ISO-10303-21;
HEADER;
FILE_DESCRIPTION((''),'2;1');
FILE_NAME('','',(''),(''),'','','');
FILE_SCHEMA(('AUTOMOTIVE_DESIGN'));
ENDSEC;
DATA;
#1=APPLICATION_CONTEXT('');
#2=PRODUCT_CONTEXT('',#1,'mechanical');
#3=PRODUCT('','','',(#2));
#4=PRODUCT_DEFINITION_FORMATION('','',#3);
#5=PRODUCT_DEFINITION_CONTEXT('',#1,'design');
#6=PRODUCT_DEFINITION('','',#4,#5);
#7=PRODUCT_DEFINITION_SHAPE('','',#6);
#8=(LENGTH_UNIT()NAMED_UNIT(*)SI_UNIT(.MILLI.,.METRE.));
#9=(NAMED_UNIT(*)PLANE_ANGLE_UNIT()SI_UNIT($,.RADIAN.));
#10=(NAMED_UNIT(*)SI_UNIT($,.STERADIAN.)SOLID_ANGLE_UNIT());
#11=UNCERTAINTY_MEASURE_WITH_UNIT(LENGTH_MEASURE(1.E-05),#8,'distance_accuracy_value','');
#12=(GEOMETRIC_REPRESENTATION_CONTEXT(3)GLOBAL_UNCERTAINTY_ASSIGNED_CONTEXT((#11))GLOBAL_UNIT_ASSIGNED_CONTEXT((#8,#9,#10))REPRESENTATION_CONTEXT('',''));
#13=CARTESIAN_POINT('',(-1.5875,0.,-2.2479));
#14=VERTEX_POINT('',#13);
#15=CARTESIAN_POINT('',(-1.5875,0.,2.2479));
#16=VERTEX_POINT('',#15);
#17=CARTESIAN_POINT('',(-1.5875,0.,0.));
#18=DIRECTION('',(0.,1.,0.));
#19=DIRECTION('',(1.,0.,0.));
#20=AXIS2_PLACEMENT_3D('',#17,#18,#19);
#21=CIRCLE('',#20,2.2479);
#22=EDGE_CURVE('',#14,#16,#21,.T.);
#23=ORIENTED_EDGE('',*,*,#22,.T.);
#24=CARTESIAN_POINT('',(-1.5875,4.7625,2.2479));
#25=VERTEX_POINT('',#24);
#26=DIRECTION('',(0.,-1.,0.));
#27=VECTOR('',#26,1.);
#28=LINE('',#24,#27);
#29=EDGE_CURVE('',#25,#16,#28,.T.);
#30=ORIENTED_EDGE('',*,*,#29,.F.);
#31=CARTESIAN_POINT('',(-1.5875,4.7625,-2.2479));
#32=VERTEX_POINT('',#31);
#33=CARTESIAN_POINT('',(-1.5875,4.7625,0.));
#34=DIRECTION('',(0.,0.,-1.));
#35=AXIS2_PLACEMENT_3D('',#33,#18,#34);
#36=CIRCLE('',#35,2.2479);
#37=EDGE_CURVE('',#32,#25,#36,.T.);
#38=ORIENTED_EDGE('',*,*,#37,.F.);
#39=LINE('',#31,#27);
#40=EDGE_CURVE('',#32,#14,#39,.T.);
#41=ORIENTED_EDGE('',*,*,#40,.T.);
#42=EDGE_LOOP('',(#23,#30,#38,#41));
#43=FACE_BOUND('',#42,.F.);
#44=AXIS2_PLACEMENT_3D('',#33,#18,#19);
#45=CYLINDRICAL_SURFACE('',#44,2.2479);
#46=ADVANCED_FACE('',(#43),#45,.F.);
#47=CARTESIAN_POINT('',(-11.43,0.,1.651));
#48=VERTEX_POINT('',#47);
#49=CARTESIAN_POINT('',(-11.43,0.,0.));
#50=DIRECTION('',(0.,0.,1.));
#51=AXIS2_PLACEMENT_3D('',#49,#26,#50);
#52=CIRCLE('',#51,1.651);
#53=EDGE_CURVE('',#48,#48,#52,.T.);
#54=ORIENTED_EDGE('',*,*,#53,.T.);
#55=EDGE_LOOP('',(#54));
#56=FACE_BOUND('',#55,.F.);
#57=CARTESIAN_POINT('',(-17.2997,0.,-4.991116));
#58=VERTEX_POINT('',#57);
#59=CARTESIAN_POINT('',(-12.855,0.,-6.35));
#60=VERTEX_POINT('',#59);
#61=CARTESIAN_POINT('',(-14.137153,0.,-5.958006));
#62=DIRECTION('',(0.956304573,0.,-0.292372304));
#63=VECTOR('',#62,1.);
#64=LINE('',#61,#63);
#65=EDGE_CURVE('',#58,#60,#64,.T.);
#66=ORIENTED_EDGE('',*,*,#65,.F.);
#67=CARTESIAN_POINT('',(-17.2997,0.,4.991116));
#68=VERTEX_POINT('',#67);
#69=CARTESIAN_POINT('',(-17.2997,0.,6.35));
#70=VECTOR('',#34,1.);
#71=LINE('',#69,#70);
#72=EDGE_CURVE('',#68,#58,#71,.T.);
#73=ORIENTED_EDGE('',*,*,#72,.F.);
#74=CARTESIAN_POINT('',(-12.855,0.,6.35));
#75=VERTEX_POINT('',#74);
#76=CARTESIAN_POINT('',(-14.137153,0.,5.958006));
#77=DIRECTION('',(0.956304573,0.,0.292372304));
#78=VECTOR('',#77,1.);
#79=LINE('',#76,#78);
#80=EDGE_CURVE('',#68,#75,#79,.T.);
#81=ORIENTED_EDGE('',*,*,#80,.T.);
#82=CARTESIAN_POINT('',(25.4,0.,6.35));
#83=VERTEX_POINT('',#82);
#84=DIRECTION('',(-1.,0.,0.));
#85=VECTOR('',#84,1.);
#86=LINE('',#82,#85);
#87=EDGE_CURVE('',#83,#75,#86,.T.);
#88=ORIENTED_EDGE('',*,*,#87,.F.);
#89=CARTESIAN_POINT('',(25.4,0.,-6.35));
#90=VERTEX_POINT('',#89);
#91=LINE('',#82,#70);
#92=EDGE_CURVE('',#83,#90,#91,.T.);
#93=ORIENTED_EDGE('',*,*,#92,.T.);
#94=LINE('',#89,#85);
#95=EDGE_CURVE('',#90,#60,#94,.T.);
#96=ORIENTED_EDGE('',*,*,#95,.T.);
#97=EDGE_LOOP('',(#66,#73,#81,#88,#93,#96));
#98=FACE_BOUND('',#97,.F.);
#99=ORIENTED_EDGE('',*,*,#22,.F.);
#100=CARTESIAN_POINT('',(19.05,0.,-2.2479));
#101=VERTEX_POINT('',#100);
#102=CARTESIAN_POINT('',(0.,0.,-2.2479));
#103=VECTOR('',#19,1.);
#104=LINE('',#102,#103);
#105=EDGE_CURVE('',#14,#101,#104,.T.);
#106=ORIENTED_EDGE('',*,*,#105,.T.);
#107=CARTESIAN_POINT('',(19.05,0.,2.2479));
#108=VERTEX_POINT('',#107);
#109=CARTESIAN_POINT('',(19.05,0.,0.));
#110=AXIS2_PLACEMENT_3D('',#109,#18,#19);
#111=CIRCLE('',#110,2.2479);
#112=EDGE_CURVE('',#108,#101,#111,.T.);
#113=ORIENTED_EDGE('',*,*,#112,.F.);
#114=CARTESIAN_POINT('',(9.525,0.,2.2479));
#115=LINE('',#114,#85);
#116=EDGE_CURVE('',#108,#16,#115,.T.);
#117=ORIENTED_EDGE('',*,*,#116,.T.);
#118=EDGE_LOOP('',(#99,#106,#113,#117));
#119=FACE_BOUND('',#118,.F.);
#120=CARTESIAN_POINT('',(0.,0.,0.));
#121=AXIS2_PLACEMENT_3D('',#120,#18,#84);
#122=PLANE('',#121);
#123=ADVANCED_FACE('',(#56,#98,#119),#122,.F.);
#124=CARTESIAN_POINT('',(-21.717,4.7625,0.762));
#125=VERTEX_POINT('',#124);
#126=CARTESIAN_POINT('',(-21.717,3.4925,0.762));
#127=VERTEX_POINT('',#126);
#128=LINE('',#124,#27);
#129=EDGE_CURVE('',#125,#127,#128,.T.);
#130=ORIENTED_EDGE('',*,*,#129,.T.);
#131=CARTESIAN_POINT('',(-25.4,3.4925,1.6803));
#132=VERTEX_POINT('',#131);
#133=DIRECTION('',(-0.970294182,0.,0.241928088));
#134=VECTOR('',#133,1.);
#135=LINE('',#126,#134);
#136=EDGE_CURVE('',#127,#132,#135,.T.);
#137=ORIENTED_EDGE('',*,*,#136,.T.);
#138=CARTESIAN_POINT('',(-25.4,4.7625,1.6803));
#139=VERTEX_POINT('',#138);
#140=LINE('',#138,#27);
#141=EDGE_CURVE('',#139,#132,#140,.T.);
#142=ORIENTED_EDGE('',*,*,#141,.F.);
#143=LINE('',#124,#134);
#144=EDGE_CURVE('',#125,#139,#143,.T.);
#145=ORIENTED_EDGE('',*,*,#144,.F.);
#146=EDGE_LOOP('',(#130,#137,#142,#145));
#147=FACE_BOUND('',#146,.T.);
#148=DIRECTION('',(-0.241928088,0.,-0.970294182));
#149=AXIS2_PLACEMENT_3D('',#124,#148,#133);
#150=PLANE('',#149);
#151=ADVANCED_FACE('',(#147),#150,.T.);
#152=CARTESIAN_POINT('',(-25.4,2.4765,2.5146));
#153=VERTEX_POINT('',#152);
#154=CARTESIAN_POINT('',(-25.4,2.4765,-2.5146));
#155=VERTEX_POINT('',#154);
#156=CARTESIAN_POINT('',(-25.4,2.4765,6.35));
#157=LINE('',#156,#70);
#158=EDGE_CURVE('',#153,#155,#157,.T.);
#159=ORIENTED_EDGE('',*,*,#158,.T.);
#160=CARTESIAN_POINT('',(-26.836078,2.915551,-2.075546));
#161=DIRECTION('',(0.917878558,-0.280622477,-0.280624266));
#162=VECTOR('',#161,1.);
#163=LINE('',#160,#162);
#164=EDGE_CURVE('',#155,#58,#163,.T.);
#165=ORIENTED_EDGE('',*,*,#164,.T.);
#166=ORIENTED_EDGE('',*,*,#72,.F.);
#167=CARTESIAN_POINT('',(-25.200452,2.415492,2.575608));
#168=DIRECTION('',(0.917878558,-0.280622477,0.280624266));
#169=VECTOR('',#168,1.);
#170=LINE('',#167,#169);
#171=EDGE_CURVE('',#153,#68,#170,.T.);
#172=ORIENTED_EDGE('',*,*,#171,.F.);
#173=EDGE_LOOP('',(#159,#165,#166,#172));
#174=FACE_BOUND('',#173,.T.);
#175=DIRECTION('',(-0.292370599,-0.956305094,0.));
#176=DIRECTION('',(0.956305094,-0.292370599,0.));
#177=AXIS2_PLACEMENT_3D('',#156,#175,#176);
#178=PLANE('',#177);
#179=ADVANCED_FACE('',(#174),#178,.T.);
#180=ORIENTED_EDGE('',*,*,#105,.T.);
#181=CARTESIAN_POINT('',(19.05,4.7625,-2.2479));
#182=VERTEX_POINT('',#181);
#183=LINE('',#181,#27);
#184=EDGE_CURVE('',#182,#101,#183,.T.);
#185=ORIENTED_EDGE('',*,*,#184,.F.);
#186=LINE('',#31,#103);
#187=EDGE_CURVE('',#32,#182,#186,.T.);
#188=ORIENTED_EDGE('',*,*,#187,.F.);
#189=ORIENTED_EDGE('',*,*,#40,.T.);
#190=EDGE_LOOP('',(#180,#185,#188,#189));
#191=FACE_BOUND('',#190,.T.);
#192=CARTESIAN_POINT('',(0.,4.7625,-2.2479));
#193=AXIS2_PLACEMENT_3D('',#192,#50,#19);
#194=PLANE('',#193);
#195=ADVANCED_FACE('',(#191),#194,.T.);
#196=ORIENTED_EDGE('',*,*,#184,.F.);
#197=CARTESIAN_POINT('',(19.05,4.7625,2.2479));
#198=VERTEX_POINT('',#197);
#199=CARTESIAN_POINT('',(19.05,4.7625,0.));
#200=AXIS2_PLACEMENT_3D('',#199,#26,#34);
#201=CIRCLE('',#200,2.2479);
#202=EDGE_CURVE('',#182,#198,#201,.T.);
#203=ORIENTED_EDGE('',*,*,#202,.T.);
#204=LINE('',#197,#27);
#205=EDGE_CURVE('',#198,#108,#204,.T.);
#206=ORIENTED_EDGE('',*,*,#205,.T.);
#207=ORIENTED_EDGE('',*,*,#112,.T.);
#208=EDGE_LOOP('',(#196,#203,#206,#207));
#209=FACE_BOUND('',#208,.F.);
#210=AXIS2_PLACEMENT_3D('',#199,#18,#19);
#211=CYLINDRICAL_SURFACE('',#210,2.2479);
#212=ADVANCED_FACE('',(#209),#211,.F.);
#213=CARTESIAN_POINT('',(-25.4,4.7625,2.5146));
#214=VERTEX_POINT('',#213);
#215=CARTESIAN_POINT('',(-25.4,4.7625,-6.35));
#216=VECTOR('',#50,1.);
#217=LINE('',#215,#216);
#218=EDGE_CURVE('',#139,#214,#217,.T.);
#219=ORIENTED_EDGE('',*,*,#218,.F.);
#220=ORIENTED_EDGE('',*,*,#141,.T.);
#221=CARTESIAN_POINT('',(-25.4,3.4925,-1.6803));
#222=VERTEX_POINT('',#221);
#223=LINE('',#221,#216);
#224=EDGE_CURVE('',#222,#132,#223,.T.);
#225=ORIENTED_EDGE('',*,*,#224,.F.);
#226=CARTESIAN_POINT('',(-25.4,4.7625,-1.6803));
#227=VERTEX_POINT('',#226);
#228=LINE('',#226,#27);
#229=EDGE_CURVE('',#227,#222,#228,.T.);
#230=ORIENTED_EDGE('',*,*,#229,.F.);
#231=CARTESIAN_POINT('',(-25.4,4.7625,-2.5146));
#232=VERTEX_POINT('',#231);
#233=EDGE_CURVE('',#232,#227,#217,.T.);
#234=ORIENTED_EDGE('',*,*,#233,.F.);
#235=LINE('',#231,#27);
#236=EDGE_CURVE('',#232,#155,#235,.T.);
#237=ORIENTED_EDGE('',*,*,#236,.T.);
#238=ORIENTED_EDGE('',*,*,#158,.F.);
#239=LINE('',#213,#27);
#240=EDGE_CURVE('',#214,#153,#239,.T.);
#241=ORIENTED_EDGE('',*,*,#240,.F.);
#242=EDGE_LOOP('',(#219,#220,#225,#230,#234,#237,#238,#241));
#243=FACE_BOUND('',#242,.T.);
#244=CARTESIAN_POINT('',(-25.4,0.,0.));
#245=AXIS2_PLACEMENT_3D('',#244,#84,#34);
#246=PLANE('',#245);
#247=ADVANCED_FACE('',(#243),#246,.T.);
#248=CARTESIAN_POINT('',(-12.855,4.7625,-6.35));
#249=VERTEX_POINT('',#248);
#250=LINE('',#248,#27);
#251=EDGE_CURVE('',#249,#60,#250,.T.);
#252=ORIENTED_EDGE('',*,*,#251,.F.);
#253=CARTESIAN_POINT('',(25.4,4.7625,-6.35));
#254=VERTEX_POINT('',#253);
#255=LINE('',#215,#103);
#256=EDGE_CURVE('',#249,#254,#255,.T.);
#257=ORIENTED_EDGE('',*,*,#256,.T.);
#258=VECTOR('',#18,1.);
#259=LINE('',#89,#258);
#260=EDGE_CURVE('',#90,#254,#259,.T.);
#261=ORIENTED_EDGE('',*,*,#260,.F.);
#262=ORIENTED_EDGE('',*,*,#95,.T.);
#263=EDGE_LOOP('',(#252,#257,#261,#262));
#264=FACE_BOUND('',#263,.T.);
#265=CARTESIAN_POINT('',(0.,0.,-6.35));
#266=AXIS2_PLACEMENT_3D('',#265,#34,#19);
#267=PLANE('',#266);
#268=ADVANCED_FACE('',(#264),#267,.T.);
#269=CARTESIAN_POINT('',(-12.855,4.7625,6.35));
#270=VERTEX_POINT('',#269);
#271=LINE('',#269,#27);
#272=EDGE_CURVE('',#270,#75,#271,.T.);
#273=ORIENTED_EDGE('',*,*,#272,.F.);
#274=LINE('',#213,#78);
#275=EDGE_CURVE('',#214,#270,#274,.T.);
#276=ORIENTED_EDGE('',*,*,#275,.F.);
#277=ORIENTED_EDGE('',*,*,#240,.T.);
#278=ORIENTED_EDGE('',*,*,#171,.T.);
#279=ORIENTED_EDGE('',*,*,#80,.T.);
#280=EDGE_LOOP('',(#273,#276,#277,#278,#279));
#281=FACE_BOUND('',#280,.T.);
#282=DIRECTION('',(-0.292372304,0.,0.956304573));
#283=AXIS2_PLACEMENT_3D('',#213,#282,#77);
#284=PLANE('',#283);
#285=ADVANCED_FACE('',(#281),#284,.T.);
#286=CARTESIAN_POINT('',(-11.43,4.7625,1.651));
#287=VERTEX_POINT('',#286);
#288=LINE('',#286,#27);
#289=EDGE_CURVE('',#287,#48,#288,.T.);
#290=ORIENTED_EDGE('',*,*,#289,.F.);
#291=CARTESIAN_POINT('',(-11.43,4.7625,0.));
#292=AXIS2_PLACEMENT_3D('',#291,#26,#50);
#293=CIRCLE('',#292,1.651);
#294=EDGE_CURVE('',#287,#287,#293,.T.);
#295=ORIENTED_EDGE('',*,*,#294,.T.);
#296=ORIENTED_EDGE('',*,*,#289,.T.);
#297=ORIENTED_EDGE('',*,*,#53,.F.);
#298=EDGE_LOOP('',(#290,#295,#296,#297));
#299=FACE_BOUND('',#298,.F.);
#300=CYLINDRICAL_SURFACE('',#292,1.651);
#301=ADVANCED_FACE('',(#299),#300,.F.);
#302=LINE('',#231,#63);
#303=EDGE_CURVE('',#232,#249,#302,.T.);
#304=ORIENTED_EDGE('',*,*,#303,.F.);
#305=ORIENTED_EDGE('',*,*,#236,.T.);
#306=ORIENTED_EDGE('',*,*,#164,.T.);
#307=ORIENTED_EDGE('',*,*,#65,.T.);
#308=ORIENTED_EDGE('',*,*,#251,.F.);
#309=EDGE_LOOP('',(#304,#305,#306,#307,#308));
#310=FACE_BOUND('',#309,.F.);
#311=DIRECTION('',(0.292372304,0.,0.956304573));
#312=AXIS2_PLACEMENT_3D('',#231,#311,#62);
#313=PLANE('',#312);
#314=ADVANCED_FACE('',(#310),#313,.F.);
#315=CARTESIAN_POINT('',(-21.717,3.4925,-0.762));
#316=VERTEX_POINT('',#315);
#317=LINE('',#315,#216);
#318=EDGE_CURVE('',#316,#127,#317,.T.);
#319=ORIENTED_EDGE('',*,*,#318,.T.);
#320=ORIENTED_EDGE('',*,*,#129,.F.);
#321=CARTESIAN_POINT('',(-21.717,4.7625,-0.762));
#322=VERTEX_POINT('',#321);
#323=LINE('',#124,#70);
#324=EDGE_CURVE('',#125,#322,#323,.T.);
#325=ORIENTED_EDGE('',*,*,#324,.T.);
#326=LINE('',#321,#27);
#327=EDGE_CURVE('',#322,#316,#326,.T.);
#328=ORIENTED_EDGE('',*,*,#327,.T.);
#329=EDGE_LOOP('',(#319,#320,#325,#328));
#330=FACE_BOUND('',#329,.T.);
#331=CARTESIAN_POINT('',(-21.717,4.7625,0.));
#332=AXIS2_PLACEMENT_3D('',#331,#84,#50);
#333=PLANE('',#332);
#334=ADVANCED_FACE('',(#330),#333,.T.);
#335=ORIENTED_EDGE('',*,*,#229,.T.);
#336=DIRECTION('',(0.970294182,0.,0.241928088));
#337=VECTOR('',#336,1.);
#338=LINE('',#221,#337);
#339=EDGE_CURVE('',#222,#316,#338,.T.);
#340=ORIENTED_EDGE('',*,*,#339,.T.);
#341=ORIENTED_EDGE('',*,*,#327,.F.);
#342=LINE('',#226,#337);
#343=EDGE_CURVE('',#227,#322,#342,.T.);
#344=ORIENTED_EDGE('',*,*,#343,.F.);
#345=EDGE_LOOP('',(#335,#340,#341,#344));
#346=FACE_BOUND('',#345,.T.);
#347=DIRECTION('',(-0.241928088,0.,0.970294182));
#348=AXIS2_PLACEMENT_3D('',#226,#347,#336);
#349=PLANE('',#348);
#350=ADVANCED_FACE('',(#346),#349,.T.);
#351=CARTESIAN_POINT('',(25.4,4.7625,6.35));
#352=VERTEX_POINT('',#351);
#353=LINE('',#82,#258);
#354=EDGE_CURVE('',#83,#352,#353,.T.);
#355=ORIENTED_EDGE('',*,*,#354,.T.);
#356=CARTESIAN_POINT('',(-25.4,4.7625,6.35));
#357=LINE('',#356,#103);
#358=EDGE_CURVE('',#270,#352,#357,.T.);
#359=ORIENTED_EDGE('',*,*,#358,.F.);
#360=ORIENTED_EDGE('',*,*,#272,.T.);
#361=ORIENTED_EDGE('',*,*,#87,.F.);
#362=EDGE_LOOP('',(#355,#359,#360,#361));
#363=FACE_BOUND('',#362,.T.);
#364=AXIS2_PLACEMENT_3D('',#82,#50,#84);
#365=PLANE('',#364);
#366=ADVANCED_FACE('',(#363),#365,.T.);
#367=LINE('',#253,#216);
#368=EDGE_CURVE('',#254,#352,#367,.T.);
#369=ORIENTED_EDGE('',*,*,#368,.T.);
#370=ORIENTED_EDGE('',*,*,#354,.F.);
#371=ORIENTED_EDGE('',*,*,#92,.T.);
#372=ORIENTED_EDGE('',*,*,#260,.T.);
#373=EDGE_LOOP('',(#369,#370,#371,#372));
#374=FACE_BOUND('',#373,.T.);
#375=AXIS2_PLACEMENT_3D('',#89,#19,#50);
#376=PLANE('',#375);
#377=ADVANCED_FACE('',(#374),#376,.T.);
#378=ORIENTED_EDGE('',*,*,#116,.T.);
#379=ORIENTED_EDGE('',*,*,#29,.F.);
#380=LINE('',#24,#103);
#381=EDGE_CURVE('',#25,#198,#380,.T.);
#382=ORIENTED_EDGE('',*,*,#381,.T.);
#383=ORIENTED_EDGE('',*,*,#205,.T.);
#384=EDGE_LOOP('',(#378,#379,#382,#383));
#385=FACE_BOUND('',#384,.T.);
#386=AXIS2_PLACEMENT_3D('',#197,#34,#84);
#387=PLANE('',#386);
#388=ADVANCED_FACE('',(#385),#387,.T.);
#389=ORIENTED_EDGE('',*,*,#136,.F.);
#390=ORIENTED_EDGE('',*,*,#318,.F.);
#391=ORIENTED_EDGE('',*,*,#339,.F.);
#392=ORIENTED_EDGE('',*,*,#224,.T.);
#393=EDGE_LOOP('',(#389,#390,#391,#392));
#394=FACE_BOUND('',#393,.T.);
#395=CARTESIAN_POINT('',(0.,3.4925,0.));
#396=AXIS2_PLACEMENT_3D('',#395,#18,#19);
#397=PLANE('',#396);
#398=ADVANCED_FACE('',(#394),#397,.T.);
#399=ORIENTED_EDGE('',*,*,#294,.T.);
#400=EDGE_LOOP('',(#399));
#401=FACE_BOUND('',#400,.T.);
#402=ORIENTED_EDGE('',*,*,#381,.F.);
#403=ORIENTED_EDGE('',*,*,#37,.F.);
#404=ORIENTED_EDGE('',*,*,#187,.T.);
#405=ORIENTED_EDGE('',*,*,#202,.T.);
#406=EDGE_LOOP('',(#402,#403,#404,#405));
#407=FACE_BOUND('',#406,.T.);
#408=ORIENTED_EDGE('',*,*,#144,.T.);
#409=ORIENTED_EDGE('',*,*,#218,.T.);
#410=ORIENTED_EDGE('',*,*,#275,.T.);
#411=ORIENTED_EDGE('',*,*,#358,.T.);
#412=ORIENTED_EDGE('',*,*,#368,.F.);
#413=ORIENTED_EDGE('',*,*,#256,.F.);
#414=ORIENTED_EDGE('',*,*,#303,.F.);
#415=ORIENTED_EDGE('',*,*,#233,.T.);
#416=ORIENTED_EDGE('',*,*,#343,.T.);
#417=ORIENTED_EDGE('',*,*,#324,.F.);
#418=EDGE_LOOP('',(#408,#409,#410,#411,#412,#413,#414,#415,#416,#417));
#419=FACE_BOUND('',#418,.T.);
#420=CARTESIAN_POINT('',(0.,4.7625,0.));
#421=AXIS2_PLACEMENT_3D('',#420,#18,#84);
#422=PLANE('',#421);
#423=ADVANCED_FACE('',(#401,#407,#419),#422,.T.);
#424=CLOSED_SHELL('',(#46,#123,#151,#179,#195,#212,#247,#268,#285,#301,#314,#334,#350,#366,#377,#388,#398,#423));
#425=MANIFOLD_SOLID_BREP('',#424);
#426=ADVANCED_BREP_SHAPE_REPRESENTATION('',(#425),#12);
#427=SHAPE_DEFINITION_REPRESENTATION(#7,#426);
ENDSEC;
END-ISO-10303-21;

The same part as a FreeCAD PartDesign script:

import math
import FreeCAD as App
import Part
import Sketcher
from FreeCAD import Vector
Q = App.Units.Quantity


def add_polygon(sketch, points):
    """Adds a closed chain of lines whose ends are joined by coincident constraints."""
    first, n = sketch.GeometryCount, len(points)
    for a, b in zip(points, points[1:] + points[:1]):
        sketch.addGeometry(Part.LineSegment(App.Vector(*a, 0), App.Vector(*b, 0)), False)
    for i in range(n):
        sketch.addConstraint(Sketcher.Constraint("Coincident", first + i, 2, first + (i + 1) % n, 1))

doc = App.newDocument("Part")
params = doc.addObject("Spreadsheet::Sheet", "Params")
for row, (alias, value) in enumerate([
    ("sketch1_width", "2 in"),
    ("sketch1_height", "0.5 in"),
    ("pad1_length", "0.1875 in"),
    ("sketch2_width", "0.8125 in"),
    ("sketch3_height", "0.06 in"),
    ("pocket2_length", "0.05 in"),
    ("sketch4_diameter", "0.13 in"),
    ("hole_diameter", "0.13 in"),
    ("hole_depth", "0.484 in"),
], start=1):
    params.set(f"A{row}", alias)
    params.set(f"B{row}", "=" + value)
    params.setAlias(f"B{row}", alias)

body = doc.addObject("PartDesign::Body", "Body")

sketch1 = doc.addObject("Sketcher::SketchObject", "Sketch")
body.addObject(sketch1)
sketch1.AttachmentSupport = (doc.XZ_Plane, [""])
sketch1.MapMode = "FlatFace"
add_polygon(sketch1, [(25, -6), (-25, -6), (-25, 6), (25, 6)])
sketch1.addConstraint([
    Sketcher.Constraint("Horizontal", 0),
    Sketcher.Constraint("Vertical", 1),
    Sketcher.Constraint("Horizontal", 2),
    Sketcher.Constraint("Vertical", 3),
    Sketcher.Constraint("Symmetric", 0, 2, 2, 2, -1, 1),
    Sketcher.Constraint("DistanceX", 0, 2, 0, 1, Q("2 in")),
    Sketcher.Constraint("DistanceY", 1, 1, 1, 2, Q("0.5 in")),
])
sketch1.setExpression("Constraints[9]", "Params.sketch1_width")
sketch1.setExpression("Constraints[10]", "Params.sketch1_height")
pad1 = doc.addObject("PartDesign::Pad", "Pad")
body.addObject(pad1)
pad1.Profile = sketch1
pad1.setExpression("Length", "Params.pad1_length")
pad1.Reversed = True

sketch2 = doc.addObject("Sketcher::SketchObject", "Sketch001")
body.addObject(sketch2)
sketch2.AttachmentSupport = (doc.XZ_Plane, [""])
sketch2.MapMode = "FlatFace"
sketch2.AttachmentOffset = App.Placement(Vector(0, 0, -0.1875 * 25.4), App.Rotation())
add_polygon(sketch2, [(-25.4, -2.5), (-12.9, -6.3), (-25.4, -6.3)])
sketch2.addGeometry(Part.LineSegment(Vector(19.1, -2.2, 0), Vector(-1.6, -2.2, 0)), False)
sketch2.addGeometry(Part.ArcOfCircle(Part.Circle(Vector(-1.6, 0, 0), Vector(0, 0, 1), 2.2), math.radians(90), math.radians(270)), False)
sketch2.addGeometry(Part.LineSegment(Vector(-1.6, 2.2, 0), Vector(19.1, 2.2, 0)), False)
sketch2.addGeometry(Part.ArcOfCircle(Part.Circle(Vector(19.1, 0, 0), Vector(0, 0, 1), 2.2), math.radians(-90), math.radians(90)), False)
add_polygon(sketch2, [(-12.9, 6.3), (-25.4, 2.5), (-25.4, 6.3)])
sketch2.addConstraint([
    Sketcher.Constraint("Tangent", 3, 2, 4, 2),
    Sketcher.Constraint("Tangent", 4, 1, 5, 1),
    Sketcher.Constraint("Tangent", 5, 2, 6, 2),
    Sketcher.Constraint("Tangent", 6, 1, 3, 1),
    Sketcher.Constraint("Horizontal", 1),
    Sketcher.Constraint("Vertical", 2),
    Sketcher.Constraint("Horizontal", 3),
    Sketcher.Constraint("Horizontal", 5),
    Sketcher.Constraint("Vertical", 8),
    Sketcher.Constraint("Horizontal", 9),
    Sketcher.Constraint("Symmetric", 2, 2, 7, 2, -1),
    Sketcher.Constraint("Symmetric", 0, 2, 9, 2, -1),
    Sketcher.Constraint("PointOnObject", 4, 3, -1),
    Sketcher.Constraint("Angle", 7, Q("-163 deg")),
    Sketcher.Constraint("Radius", 4, Q("0.0885 in")),
    Sketcher.Constraint("DistanceX", 3, 2, 3, 1, Q("0.8125 in")),
    Sketcher.Constraint("DistanceY", 0, 2, -1, 1, Q("0.25 in")),
    Sketcher.Constraint("DistanceX", 1, 2, -1, 1, Q("1 in")),
    Sketcher.Constraint("DistanceY", 2, 2, 7, 2, Q("0.198 in")),
    Sketcher.Constraint("DistanceX", -1, 1, 6, 3, Q("0.75 in")),
])
sketch2.setExpression("Constraints[21]", "Params.sketch2_width")
pocket1 = doc.addObject("PartDesign::Pocket", "Pocket")
body.addObject(pocket1)
pocket1.Profile = sketch2
pocket1.Type = "ThroughAll"
pocket1.Reversed = True

sketch3 = doc.addObject("Sketcher::SketchObject", "Sketch002")
body.addObject(sketch3)
sketch3.AttachmentSupport = (doc.XZ_Plane, [""])
sketch3.MapMode = "FlatFace"
sketch3.AttachmentOffset = App.Placement(Vector(0, 0, -0.1875 * 25.4), App.Rotation())
add_polygon(sketch3, [(-25.4, 1.7), (-21.7, 0.8), (-21.7, -0.8), (-25.4, -1.7)])
sketch3.addConstraint([
    Sketcher.Constraint("Vertical", 1),
    Sketcher.Constraint("Vertical", 3),
    Sketcher.Constraint("Equal", 0, 2),
    Sketcher.Constraint("Angle", 0, Q("-14.0004 deg")),
    Sketcher.Constraint("DistanceY", 1, 2, 1, 1, Q("0.06 in")),
    Sketcher.Constraint("DistanceY", -1, 1, 0, 2, Q("0.03 in")),
    Sketcher.Constraint("DistanceX", 2, 2, -1, 1, Q("1 in")),
    Sketcher.Constraint("DistanceX", 2, 2, 1, 2, Q("0.145 in")),
])
sketch3.setExpression("Constraints[8]", "Params.sketch3_height")
pocket2 = doc.addObject("PartDesign::Pocket", "Pocket001")
body.addObject(pocket2)
pocket2.Profile = sketch3
pocket2.setExpression("Length", "Params.pocket2_length")
pocket2.Reversed = True

sketch4 = doc.addObject("Sketcher::SketchObject", "Sketch003")
body.addObject(sketch4)
sketch4.AttachmentSupport = (doc.XZ_Plane, [""])
sketch4.MapMode = "FlatFace"
sketch4.AttachmentOffset = App.Placement(Vector(0, 0, -0.1875 * 25.4), App.Rotation())
sketch4.addGeometry(Part.Circle(Vector(-11.4, 0, 0), Vector(0, 0, 1), 1.7), False)
sketch4.addConstraint([
    Sketcher.Constraint("PointOnObject", 0, 3, -1),
    Sketcher.Constraint("Diameter", 0, Q("0.13 in")),
    Sketcher.Constraint("DistanceX", 0, 3, -1, 1, Q("0.45 in")),
])
sketch4.setExpression("Constraints[1]", "Params.sketch4_diameter")
doc.recompute()
hole = doc.addObject("PartDesign::Hole", "Hole")
body.addObject(hole)
hole.Profile = sketch4
hole.ThreadType = "None"
hole.setExpression("Diameter", "Params.hole_diameter")
hole.DepthType = "Dimension"
hole.setExpression("Depth", "Params.hole_depth")
hole.DrillPoint = "Angled"
hole.DrillPointAngle = 118
hole.Reversed = True

sketch5 = doc.addObject("Sketcher::SketchObject", "Sketch004")
body.addObject(sketch5)
sketch5.AttachmentSupport = (doc.XY_Plane, [""])
sketch5.MapMode = "FlatFace"
sketch5.AttachmentOffset = App.Placement(Vector(0, 0, 0.25 * 25.4), App.Rotation())
add_polygon(sketch5, [(-17, -12), (-17, 0), (-25, 2), (-25, -12)])
sketch5.addConstraint([
    Sketcher.Constraint("Vertical", 0),
    Sketcher.Constraint("Vertical", 2),
    Sketcher.Constraint("Horizontal", 3),
    Sketcher.Constraint("PointOnObject", 0, 2, -1),
    Sketcher.Constraint("Angle", 1, Q("163 deg")),
    Sketcher.Constraint("DistanceX", 1, 2, -1, 1, Q("1 in")),
    Sketcher.Constraint("DistanceX", 3, 1, 3, 2, Q("0.3189 in")),
    Sketcher.Constraint("DistanceY", 0, 1, 0, 2, Q("0.4728 in")),
])
pocket3 = doc.addObject("PartDesign::Pocket", "Pocket002")
body.addObject(pocket3)
pocket3.Profile = sketch5
pocket3.Type = "ThroughAll"

doc.recompute()
